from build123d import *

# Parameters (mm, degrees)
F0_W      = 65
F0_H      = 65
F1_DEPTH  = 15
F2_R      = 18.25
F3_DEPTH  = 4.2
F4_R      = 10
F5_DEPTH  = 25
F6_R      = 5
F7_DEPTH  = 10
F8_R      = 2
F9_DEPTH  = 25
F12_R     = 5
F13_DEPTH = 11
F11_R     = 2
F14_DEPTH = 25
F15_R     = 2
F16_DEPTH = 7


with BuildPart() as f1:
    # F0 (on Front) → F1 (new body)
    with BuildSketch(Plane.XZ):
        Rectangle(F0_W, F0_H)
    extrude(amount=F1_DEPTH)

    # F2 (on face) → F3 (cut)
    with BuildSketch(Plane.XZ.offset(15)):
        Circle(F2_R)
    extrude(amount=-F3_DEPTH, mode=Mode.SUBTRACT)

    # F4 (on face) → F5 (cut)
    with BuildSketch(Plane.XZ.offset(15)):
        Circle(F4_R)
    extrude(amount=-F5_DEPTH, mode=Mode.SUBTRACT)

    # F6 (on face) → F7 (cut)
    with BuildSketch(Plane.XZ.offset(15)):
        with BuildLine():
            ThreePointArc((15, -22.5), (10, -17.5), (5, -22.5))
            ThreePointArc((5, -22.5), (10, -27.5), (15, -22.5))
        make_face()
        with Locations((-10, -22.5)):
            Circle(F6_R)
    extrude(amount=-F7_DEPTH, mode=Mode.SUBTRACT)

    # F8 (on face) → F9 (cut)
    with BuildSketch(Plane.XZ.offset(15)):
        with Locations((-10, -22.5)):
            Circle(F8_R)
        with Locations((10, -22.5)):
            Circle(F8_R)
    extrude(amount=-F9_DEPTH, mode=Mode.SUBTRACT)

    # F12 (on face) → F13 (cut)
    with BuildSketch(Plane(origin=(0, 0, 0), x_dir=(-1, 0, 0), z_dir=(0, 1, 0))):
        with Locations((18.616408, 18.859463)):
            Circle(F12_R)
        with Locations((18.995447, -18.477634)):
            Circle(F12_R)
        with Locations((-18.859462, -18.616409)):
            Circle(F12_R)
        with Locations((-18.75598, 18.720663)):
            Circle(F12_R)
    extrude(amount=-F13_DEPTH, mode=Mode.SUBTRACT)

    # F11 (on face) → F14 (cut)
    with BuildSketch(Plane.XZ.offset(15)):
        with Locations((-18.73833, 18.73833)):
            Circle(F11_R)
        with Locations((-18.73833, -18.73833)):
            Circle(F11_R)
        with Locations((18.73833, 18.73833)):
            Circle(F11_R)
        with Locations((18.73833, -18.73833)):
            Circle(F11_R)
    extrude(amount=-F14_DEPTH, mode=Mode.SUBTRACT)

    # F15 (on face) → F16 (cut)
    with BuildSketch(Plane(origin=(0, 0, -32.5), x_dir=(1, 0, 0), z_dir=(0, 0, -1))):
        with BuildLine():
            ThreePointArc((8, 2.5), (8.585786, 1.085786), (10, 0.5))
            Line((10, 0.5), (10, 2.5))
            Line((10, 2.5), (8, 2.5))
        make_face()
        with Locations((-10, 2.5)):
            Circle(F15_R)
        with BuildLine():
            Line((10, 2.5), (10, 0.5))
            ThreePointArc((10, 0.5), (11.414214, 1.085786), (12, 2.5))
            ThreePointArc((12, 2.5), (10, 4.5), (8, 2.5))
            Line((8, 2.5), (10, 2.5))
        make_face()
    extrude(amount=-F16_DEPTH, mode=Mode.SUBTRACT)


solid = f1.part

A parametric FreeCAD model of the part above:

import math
import FreeCAD as App
import Part
import Sketcher

V = App.Vector


def add_polygon(sketch, points):
    """Adds a closed chain of lines whose ends are joined by coincident constraints."""
    first, n = sketch.GeometryCount, len(points)
    for a, b in zip(points, points[1:] + points[:1]):
        sketch.addGeometry(Part.LineSegment(App.Vector(*a, 0), App.Vector(*b, 0)), False)
    for i in range(n):
        sketch.addConstraint(Sketcher.Constraint("Coincident", first + i, 2, first + (i + 1) % n, 1))

doc = App.newDocument("Part")
body = doc.addObject("PartDesign::Body", "Body")

# Sketch on XZ plane
sketch1 = doc.addObject("Sketcher::SketchObject", "Sketch")
body.addObject(sketch1)
sketch1.AttachmentSupport = (doc.XZ_Plane, [""])
sketch1.MapMode = "FlatFace"
add_polygon(sketch1, [(-32, 32), (-32, -32), (32, -32), (32, 32)])  # lines 0-3
sketch1.addConstraint(Sketcher.Constraint("Vertical", 0))
sketch1.addConstraint(Sketcher.Constraint("Horizontal", 1))
sketch1.addConstraint(Sketcher.Constraint("Vertical", 2))
sketch1.addConstraint(Sketcher.Constraint("Horizontal", 3))
sketch1.addConstraint(Sketcher.Constraint("Symmetric", 0, 2, 2, 2, -1, 1))
sketch1.addConstraint(Sketcher.Constraint("Equal", 3, 0))
sketch1.addConstraint(Sketcher.Constraint("DistanceX", 1, 1, 1, 2, 65.0))
pad1 = doc.addObject("PartDesign::Pad", "Pad")
body.addObject(pad1)
pad1.Profile = sketch1
pad1.Length = 15

# Sketch on XZ plane
sketch2 = doc.addObject("Sketcher::SketchObject", "Sketch001")
body.addObject(sketch2)
sketch2.AttachmentSupport = (doc.XZ_Plane, [""])
sketch2.MapMode = "FlatFace"
sketch2.AttachmentOffset = App.Placement(V(0, 0, 15), App.Rotation())
sketch2.addGeometry(Part.Circle(V(0, 0, 0), V(0, 0, 1), 18), False)
sketch2.addConstraint(Sketcher.Constraint("Coincident", 0, 3, -1, 1))
sketch2.addConstraint(Sketcher.Constraint("Diameter", 0, 36.5))
pocket1 = doc.addObject("PartDesign::Pocket", "Pocket")
body.addObject(pocket1)
pocket1.Profile = sketch2
pocket1.Length = 4.2

# Sketch on XZ plane
sketch3 = doc.addObject("Sketcher::SketchObject", "Sketch002")
body.addObject(sketch3)
sketch3.AttachmentSupport = (doc.XZ_Plane, [""])
sketch3.MapMode = "FlatFace"
sketch3.AttachmentOffset = App.Placement(V(0, 0, 15), App.Rotation())
sketch3.addGeometry(Part.Circle(V(0, 0, 0), V(0, 0, 1), 10), False)
sketch3.addConstraint(Sketcher.Constraint("Coincident", 0, 3, -1, 1))
sketch3.addConstraint(Sketcher.Constraint("Diameter", 0, 20.0))
pocket2 = doc.addObject("PartDesign::Pocket", "Pocket001")
body.addObject(pocket2)
pocket2.Profile = sketch3
pocket2.Length = 25

# Sketch on XZ plane
sketch4 = doc.addObject("Sketcher::SketchObject", "Sketch003")
body.addObject(sketch4)
sketch4.AttachmentSupport = (doc.XZ_Plane, [""])
sketch4.MapMode = "FlatFace"
sketch4.AttachmentOffset = App.Placement(V(0, 0, 15), App.Rotation())
sketch4.addGeometry(Part.Circle(V(10, -22, 0), V(0, 0, 1), 5), False)
sketch4.addGeometry(Part.Circle(V(-10, -22, 0), V(0, 0, 1), 5), False)
sketch4.addConstraint(Sketcher.Constraint("Equal", 0, 1))
sketch4.addConstraint(Sketcher.Constraint("Symmetric", 0, 3, 1, 3, -2))
sketch4.addConstraint(Sketcher.Constraint("Diameter", 0, 10.0))
sketch4.addConstraint(Sketcher.Constraint("DistanceX", -1, 1, 0, 3, 10.0))
sketch4.addConstraint(Sketcher.Constraint("DistanceY", 0, 3, -1, 1, 22.5))
pocket3 = doc.addObject("PartDesign::Pocket", "Pocket002")
body.addObject(pocket3)
pocket3.Profile = sketch4
pocket3.Length = 10

# Sketch on XZ plane
sketch5 = doc.addObject("Sketcher::SketchObject", "Sketch004")
body.addObject(sketch5)
sketch5.AttachmentSupport = (doc.XZ_Plane, [""])
sketch5.MapMode = "FlatFace"
sketch5.AttachmentOffset = App.Placement(V(0, 0, 15), App.Rotation())
sketch5.addGeometry(Part.Circle(V(-10, -22.5, 0), V(0, 0, 1), 2), False)
sketch5.addGeometry(Part.Circle(V(10, -22.5, 0), V(0, 0, 1), 2), False)
sketch5.addConstraint(Sketcher.Constraint("Equal", 0, 1))
sketch5.addConstraint(Sketcher.Constraint("Symmetric", 0, 3, 1, 3, -2))
sketch5.addConstraint(Sketcher.Constraint("Diameter", 0, 4.0))
sketch5.addConstraint(Sketcher.Constraint("DistanceX", 0, 3, -1, 1, 10.0))
sketch5.addConstraint(Sketcher.Constraint("DistanceY", 0, 3, -1, 1, 22.5))
pocket4 = doc.addObject("PartDesign::Pocket", "Pocket003")
body.addObject(pocket4)
pocket4.Profile = sketch5
pocket4.Length = 25

# Sketch on XZ plane
sketch6 = doc.addObject("Sketcher::SketchObject", "Sketch005")
body.addObject(sketch6)
sketch6.AttachmentSupport = (doc.XZ_Plane, [""])
sketch6.MapMode = "FlatFace"
sketch6.addGeometry(Part.Circle(V(-19, 19, 0), V(0, 0, 1), 5), False)
sketch6.addGeometry(Part.Circle(V(-19, -18, 0), V(0, 0, 1), 5), False)
sketch6.addGeometry(Part.Circle(V(19, -19, 0), V(0, 0, 1), 5), False)
sketch6.addGeometry(Part.Circle(V(19, 19, 0), V(0, 0, 1), 5), False)
sketch6.addConstraint(Sketcher.Constraint("Equal", 0, 1))
sketch6.addConstraint(Sketcher.Constraint("Equal", 1, 2))
sketch6.addConstraint(Sketcher.Constraint("Equal", 2, 3))
sketch6.addConstraint(Sketcher.Constraint("Diameter", 0, 10.0))
sketch6.addConstraint(Sketcher.Constraint("DistanceY", 3, 3, 0, 3, 0.1388))
sketch6.addConstraint(Sketcher.Constraint("DistanceX", 0, 3, -1, 1, 18.616408))
sketch6.addConstraint(Sketcher.Constraint("DistanceY", 2, 3, -1, 1, 18.616409))
sketch6.addConstraint(Sketcher.Constraint("DistanceX", -1, 1, 3, 3, 18.75598))
sketch6.addConstraint(Sketcher.Constraint("DistanceX", 1, 3, 0, 3, 0.379039))
sketch6.addConstraint(Sketcher.Constraint("DistanceX", 1, 3, 2, 3, 37.854909))
sketch6.addConstraint(Sketcher.Constraint("DistanceY", -1, 1, 0, 3, 18.859463))
sketch6.addConstraint(Sketcher.Constraint("DistanceY", 1, 3, -1, 1, 18.477634))
pocket5 = doc.addObject("PartDesign::Pocket", "Pocket004")
body.addObject(pocket5)
pocket5.Profile = sketch6
pocket5.Length = 11
pocket5.Reversed = True

# Sketch on XZ plane
sketch7 = doc.addObject("Sketcher::SketchObject", "Sketch006")
body.addObject(sketch7)
sketch7.AttachmentSupport = (doc.XZ_Plane, [""])
sketch7.MapMode = "FlatFace"
sketch7.AttachmentOffset = App.Placement(V(0, 0, 15), App.Rotation())
sketch7.addGeometry(Part.Circle(V(-18.7, 18.7, 0), V(0, 0, 1), 2), False)
sketch7.addGeometry(Part.Circle(V(-18.7, -18.7, 0), V(0, 0, 1), 2), False)
sketch7.addGeometry(Part.Circle(V(18.7, 18.7, 0), V(0, 0, 1), 2), False)
sketch7.addGeometry(Part.Circle(V(18.7, -18.7, 0), V(0, 0, 1), 2), False)
sketch7.addConstraint(Sketcher.Constraint("Equal", 0, 1))
sketch7.addConstraint(Sketcher.Constraint("Equal", 1, 2))
sketch7.addConstraint(Sketcher.Constraint("Equal", 2, 3))
sketch7.addConstraint(Sketcher.Constraint("Symmetric", 1, 3, 2, 3, -1, 1))
sketch7.addConstraint(Sketcher.Constraint("Symmetric", 0, 3, 3, 3, -1, 1))
sketch7.addConstraint(Sketcher.Constraint("Symmetric", 0, 3, 2, 3, -2))
sketch7.addConstraint(Sketcher.Constraint("Diameter", 0, 4.0))
sketch7.addConstraint(Sketcher.Constraint("DistanceX", 0, 3, -1, 1, 18.73833))
sketch7.addConstraint(Sketcher.Constraint("DistanceY", -1, 1, 0, 3, 18.73833))
pocket6 = doc.addObject("PartDesign::Pocket", "Pocket005")
body.addObject(pocket6)
pocket6.Profile = sketch7
pocket6.Length = 25

# Sketch on XY plane
sketch8 = doc.addObject("Sketcher::SketchObject", "Sketch007")
body.addObject(sketch8)
sketch8.AttachmentSupport = (doc.XY_Plane, [""])
sketch8.MapMode = "FlatFace"
sketch8.AttachmentOffset = App.Placement(V(0, 0, -32.5), App.Rotation())
sketch8.addGeometry(Part.ArcOfCircle(Part.Circle(V(10, -2.5, 0), V(0, 0, 1), 2), math.radians(90), math.radians(180)), False)
sketch8.addGeometry(Part.ArcOfCircle(Part.Circle(V(10, -2.5, 0), V(0, 0, 1), 2), math.radians(0), math.radians(90)), False)
sketch8.addGeometry(Part.ArcOfCircle(Part.Circle(V(10, -2.5, 0), V(0, 0, 1), 2), math.radians(180), math.radians(360)), False)
sketch8.addGeometry(Part.Circle(V(-10, -2.5, 0), V(0, 0, 1), 2), False)
sketch8.addConstraint(Sketcher.Constraint("Tangent", 0, 1, 1, 2))
sketch8.addConstraint(Sketcher.Constraint("Tangent", 1, 1, 2, 2))
sketch8.addConstraint(Sketcher.Constraint("Tangent", 2, 1, 0, 2))
sketch8.addConstraint(Sketcher.Constraint("Equal", 2, 3))
sketch8.addConstraint(Sketcher.Constraint("Symmetric", 0, 3, 3, 3, -2))
sketch8.addConstraint(Sketcher.Constraint("Horizontal", 3, 3, 1, 1))
sketch8.addConstraint(Sketcher.Constraint("Horizontal", 1, 1, 2, 1))
sketch8.addConstraint(Sketcher.Constraint("Vertical", 2, 3, 0, 1))
sketch8.addConstraint(Sketcher.Constraint("Diameter", 3, 4.0))
sketch8.addConstraint(Sketcher.Constraint("DistanceX", -1, 1, 0, 3, 9.999999))
sketch8.addConstraint(Sketcher.Constraint("DistanceY", 0, 3, -1, 1, 2.499999))
pocket7 = doc.addObject("PartDesign::Pocket", "Pocket006")
body.addObject(pocket7)
pocket7.Profile = sketch8
pocket7.Length = 7
pocket7.Reversed = True

doc.recompute()
